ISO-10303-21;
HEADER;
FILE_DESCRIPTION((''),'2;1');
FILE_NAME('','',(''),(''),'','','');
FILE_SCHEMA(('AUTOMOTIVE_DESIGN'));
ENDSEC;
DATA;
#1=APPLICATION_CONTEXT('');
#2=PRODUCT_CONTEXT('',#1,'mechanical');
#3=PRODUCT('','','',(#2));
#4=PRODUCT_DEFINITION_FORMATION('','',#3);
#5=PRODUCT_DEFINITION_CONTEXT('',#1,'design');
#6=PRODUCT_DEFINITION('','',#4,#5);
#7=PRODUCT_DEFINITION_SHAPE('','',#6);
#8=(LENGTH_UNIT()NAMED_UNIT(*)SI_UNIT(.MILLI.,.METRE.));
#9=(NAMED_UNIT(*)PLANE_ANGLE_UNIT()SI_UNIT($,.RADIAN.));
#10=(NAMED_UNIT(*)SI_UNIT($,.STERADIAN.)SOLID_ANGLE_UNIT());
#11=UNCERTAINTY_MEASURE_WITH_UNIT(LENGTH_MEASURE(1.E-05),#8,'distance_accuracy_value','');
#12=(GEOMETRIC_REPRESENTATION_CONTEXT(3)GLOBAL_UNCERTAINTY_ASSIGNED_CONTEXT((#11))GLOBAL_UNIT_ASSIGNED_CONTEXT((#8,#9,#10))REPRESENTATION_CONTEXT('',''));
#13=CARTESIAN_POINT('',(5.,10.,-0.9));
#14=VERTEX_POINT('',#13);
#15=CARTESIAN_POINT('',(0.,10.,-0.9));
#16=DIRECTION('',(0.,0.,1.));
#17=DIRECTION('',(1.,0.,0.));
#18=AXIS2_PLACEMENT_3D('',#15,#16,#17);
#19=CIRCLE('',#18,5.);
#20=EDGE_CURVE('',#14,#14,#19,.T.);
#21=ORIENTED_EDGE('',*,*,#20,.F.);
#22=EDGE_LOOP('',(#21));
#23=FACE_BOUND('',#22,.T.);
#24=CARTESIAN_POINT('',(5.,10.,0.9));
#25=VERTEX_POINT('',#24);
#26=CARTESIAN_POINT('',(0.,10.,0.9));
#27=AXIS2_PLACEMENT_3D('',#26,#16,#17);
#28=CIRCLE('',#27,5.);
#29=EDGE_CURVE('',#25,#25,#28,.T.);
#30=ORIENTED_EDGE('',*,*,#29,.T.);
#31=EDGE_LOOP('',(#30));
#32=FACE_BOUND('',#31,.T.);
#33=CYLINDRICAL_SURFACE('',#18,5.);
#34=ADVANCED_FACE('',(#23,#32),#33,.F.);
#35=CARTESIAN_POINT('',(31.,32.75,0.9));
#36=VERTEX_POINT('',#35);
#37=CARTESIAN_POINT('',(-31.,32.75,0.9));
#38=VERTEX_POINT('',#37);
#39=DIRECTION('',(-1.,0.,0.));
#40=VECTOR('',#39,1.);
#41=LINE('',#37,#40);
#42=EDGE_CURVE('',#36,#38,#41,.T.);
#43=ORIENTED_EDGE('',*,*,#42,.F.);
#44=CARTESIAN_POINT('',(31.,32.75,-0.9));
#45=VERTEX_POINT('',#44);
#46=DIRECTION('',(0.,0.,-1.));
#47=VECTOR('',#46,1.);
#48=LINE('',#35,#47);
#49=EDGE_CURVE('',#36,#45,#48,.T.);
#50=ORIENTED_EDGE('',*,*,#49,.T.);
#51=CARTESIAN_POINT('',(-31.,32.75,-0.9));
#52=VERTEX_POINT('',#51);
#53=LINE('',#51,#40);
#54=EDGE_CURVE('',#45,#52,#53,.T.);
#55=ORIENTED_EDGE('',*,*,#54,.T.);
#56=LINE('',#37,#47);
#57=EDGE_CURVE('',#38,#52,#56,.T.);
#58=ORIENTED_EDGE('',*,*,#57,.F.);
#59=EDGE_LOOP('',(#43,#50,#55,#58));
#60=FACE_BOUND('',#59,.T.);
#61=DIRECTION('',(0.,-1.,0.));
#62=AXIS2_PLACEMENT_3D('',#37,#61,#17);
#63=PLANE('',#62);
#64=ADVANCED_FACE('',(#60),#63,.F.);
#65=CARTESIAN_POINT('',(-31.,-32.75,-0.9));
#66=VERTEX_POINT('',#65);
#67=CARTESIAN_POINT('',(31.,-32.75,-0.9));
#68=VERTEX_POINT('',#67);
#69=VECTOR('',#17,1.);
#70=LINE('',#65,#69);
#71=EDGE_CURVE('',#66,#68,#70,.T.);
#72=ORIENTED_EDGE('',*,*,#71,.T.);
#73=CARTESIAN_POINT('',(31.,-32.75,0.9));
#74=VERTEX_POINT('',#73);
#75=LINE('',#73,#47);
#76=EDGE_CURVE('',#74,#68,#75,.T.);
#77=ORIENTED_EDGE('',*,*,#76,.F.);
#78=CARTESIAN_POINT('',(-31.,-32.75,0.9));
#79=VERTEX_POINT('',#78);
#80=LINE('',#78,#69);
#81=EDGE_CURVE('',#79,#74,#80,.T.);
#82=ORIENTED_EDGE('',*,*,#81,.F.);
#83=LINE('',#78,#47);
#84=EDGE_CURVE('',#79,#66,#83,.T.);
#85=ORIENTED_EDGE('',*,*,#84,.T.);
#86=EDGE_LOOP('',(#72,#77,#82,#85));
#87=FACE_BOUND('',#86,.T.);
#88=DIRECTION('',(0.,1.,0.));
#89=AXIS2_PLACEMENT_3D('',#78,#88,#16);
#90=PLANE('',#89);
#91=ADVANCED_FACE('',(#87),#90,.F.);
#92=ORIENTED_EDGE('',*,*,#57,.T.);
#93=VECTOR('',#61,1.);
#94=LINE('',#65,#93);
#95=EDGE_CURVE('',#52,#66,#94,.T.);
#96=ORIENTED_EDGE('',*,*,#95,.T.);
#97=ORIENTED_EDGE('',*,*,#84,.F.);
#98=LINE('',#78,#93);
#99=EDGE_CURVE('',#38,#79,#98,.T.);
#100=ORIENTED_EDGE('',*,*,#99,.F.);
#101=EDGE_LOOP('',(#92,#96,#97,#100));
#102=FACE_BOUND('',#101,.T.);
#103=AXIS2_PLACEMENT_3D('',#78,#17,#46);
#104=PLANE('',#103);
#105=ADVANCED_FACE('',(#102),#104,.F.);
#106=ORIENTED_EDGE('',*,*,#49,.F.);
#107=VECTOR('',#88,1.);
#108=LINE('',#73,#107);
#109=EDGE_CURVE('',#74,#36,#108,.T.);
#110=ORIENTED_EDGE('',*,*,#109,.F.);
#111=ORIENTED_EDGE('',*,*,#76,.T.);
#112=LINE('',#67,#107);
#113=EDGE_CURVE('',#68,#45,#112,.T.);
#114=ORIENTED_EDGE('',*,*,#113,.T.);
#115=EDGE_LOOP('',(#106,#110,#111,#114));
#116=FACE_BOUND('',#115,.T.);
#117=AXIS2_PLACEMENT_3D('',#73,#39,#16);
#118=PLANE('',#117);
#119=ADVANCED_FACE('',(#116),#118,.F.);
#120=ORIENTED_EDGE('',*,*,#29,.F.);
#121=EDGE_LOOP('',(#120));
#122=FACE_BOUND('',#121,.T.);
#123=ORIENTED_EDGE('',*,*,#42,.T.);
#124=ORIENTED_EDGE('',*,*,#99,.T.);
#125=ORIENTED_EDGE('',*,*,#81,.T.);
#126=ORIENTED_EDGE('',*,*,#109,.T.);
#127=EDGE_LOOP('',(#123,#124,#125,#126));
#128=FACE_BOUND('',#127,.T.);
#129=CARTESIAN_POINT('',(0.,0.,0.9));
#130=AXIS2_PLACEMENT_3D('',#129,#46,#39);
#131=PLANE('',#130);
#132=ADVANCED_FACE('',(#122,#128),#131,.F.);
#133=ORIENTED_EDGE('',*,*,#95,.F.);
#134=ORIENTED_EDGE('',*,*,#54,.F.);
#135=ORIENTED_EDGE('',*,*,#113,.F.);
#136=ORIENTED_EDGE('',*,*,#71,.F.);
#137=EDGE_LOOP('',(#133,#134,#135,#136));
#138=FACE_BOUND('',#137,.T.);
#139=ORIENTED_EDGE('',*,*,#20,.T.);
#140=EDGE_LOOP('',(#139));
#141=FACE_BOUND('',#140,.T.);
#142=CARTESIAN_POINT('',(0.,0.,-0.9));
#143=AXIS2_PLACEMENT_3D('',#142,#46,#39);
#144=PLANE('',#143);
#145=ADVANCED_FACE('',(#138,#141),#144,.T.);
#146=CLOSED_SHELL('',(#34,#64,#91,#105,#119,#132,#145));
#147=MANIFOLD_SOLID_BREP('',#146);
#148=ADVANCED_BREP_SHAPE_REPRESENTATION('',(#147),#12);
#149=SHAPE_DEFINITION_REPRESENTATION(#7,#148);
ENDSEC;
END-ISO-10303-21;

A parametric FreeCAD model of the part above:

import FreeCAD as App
import Part
import Sketcher


def add_polygon(sketch, points):
    """Adds a closed chain of lines whose ends are joined by coincident constraints."""
    first, n = sketch.GeometryCount, len(points)
    for a, b in zip(points, points[1:] + points[:1]):
        sketch.addGeometry(Part.LineSegment(App.Vector(*a, 0), App.Vector(*b, 0)), False)
    for i in range(n):
        sketch.addConstraint(Sketcher.Constraint("Coincident", first + i, 2, first + (i + 1) % n, 1))

doc = App.newDocument("Part")
params = doc.addObject("Spreadsheet::Sheet", "Params")
for row, (alias, value) in enumerate([
    ("sketch1_width", "62 mm"),
    ("sketch1_height", "65.5 mm"),
    ("pad1_length", "1.8 mm"),
    ("sketch2_diameter", "10 mm"),
], start=1):
    params.set(f"A{row}", alias)
    params.set(f"B{row}", "=" + value)
    params.setAlias(f"B{row}", alias)

body = doc.addObject("PartDesign::Body", "Body")

# Sketch on XY plane
sketch1 = body.newObject("Sketcher::SketchObject", "Sketch")
sketch1.AttachmentSupport = (doc.getObject("XY_Plane"), [""])
sketch1.MapMode = "FlatFace"
add_polygon(sketch1, [(-31, 33), (-31, -33), (31, -33), (31, 33)])  # lines 0-3
sketch1.addConstraint([
    Sketcher.Constraint("Vertical", 0),
    Sketcher.Constraint("Horizontal", 1),
    Sketcher.Constraint("Vertical", 2),
    Sketcher.Constraint("Horizontal", 3),
    Sketcher.Constraint("Symmetric", 0, 2, 2, 2, -1, 1),
    Sketcher.Constraint("DistanceX", 1, 1, 1, 2, 62.0),
    Sketcher.Constraint("DistanceY", 0, 2, 0, 1, 65.5),
])
sketch1.setExpression("Constraints[9]", "Params.sketch1_width")
sketch1.setExpression("Constraints[10]", "Params.sketch1_height")
pad1 = body.newObject("PartDesign::Pad", "Pad")
pad1.Profile = sketch1
pad1.setExpression("Length", "Params.pad1_length")
pad1.Midplane = True

# Sketch on XY plane
sketch2 = body.newObject("Sketcher::SketchObject", "Sketch001")
sketch2.AttachmentSupport = (doc.getObject("XY_Plane"), [""])
sketch2.MapMode = "FlatFace"
sketch2.AttachmentOffset = App.Placement(App.Vector(0, 0, 0.9), App.Rotation())
sketch2.addGeometry(Part.Circle(App.Vector(0, 10, 0), App.Vector(0, 0, 1), 5), False)
sketch2.addConstraint([
    Sketcher.Constraint("PointOnObject", 0, 3, -2),
    Sketcher.Constraint("Diameter", 0, 10.0),
    Sketcher.Constraint("DistanceY", -1, 1, 0, 3, 10.0),
])
sketch2.setExpression("Constraints[1]", "Params.sketch2_diameter")
pocket1 = body.newObject("PartDesign::Pocket", "Pocket")
pocket1.Profile = sketch2
pocket1.Type = "ThroughAll"

doc.recompute()
